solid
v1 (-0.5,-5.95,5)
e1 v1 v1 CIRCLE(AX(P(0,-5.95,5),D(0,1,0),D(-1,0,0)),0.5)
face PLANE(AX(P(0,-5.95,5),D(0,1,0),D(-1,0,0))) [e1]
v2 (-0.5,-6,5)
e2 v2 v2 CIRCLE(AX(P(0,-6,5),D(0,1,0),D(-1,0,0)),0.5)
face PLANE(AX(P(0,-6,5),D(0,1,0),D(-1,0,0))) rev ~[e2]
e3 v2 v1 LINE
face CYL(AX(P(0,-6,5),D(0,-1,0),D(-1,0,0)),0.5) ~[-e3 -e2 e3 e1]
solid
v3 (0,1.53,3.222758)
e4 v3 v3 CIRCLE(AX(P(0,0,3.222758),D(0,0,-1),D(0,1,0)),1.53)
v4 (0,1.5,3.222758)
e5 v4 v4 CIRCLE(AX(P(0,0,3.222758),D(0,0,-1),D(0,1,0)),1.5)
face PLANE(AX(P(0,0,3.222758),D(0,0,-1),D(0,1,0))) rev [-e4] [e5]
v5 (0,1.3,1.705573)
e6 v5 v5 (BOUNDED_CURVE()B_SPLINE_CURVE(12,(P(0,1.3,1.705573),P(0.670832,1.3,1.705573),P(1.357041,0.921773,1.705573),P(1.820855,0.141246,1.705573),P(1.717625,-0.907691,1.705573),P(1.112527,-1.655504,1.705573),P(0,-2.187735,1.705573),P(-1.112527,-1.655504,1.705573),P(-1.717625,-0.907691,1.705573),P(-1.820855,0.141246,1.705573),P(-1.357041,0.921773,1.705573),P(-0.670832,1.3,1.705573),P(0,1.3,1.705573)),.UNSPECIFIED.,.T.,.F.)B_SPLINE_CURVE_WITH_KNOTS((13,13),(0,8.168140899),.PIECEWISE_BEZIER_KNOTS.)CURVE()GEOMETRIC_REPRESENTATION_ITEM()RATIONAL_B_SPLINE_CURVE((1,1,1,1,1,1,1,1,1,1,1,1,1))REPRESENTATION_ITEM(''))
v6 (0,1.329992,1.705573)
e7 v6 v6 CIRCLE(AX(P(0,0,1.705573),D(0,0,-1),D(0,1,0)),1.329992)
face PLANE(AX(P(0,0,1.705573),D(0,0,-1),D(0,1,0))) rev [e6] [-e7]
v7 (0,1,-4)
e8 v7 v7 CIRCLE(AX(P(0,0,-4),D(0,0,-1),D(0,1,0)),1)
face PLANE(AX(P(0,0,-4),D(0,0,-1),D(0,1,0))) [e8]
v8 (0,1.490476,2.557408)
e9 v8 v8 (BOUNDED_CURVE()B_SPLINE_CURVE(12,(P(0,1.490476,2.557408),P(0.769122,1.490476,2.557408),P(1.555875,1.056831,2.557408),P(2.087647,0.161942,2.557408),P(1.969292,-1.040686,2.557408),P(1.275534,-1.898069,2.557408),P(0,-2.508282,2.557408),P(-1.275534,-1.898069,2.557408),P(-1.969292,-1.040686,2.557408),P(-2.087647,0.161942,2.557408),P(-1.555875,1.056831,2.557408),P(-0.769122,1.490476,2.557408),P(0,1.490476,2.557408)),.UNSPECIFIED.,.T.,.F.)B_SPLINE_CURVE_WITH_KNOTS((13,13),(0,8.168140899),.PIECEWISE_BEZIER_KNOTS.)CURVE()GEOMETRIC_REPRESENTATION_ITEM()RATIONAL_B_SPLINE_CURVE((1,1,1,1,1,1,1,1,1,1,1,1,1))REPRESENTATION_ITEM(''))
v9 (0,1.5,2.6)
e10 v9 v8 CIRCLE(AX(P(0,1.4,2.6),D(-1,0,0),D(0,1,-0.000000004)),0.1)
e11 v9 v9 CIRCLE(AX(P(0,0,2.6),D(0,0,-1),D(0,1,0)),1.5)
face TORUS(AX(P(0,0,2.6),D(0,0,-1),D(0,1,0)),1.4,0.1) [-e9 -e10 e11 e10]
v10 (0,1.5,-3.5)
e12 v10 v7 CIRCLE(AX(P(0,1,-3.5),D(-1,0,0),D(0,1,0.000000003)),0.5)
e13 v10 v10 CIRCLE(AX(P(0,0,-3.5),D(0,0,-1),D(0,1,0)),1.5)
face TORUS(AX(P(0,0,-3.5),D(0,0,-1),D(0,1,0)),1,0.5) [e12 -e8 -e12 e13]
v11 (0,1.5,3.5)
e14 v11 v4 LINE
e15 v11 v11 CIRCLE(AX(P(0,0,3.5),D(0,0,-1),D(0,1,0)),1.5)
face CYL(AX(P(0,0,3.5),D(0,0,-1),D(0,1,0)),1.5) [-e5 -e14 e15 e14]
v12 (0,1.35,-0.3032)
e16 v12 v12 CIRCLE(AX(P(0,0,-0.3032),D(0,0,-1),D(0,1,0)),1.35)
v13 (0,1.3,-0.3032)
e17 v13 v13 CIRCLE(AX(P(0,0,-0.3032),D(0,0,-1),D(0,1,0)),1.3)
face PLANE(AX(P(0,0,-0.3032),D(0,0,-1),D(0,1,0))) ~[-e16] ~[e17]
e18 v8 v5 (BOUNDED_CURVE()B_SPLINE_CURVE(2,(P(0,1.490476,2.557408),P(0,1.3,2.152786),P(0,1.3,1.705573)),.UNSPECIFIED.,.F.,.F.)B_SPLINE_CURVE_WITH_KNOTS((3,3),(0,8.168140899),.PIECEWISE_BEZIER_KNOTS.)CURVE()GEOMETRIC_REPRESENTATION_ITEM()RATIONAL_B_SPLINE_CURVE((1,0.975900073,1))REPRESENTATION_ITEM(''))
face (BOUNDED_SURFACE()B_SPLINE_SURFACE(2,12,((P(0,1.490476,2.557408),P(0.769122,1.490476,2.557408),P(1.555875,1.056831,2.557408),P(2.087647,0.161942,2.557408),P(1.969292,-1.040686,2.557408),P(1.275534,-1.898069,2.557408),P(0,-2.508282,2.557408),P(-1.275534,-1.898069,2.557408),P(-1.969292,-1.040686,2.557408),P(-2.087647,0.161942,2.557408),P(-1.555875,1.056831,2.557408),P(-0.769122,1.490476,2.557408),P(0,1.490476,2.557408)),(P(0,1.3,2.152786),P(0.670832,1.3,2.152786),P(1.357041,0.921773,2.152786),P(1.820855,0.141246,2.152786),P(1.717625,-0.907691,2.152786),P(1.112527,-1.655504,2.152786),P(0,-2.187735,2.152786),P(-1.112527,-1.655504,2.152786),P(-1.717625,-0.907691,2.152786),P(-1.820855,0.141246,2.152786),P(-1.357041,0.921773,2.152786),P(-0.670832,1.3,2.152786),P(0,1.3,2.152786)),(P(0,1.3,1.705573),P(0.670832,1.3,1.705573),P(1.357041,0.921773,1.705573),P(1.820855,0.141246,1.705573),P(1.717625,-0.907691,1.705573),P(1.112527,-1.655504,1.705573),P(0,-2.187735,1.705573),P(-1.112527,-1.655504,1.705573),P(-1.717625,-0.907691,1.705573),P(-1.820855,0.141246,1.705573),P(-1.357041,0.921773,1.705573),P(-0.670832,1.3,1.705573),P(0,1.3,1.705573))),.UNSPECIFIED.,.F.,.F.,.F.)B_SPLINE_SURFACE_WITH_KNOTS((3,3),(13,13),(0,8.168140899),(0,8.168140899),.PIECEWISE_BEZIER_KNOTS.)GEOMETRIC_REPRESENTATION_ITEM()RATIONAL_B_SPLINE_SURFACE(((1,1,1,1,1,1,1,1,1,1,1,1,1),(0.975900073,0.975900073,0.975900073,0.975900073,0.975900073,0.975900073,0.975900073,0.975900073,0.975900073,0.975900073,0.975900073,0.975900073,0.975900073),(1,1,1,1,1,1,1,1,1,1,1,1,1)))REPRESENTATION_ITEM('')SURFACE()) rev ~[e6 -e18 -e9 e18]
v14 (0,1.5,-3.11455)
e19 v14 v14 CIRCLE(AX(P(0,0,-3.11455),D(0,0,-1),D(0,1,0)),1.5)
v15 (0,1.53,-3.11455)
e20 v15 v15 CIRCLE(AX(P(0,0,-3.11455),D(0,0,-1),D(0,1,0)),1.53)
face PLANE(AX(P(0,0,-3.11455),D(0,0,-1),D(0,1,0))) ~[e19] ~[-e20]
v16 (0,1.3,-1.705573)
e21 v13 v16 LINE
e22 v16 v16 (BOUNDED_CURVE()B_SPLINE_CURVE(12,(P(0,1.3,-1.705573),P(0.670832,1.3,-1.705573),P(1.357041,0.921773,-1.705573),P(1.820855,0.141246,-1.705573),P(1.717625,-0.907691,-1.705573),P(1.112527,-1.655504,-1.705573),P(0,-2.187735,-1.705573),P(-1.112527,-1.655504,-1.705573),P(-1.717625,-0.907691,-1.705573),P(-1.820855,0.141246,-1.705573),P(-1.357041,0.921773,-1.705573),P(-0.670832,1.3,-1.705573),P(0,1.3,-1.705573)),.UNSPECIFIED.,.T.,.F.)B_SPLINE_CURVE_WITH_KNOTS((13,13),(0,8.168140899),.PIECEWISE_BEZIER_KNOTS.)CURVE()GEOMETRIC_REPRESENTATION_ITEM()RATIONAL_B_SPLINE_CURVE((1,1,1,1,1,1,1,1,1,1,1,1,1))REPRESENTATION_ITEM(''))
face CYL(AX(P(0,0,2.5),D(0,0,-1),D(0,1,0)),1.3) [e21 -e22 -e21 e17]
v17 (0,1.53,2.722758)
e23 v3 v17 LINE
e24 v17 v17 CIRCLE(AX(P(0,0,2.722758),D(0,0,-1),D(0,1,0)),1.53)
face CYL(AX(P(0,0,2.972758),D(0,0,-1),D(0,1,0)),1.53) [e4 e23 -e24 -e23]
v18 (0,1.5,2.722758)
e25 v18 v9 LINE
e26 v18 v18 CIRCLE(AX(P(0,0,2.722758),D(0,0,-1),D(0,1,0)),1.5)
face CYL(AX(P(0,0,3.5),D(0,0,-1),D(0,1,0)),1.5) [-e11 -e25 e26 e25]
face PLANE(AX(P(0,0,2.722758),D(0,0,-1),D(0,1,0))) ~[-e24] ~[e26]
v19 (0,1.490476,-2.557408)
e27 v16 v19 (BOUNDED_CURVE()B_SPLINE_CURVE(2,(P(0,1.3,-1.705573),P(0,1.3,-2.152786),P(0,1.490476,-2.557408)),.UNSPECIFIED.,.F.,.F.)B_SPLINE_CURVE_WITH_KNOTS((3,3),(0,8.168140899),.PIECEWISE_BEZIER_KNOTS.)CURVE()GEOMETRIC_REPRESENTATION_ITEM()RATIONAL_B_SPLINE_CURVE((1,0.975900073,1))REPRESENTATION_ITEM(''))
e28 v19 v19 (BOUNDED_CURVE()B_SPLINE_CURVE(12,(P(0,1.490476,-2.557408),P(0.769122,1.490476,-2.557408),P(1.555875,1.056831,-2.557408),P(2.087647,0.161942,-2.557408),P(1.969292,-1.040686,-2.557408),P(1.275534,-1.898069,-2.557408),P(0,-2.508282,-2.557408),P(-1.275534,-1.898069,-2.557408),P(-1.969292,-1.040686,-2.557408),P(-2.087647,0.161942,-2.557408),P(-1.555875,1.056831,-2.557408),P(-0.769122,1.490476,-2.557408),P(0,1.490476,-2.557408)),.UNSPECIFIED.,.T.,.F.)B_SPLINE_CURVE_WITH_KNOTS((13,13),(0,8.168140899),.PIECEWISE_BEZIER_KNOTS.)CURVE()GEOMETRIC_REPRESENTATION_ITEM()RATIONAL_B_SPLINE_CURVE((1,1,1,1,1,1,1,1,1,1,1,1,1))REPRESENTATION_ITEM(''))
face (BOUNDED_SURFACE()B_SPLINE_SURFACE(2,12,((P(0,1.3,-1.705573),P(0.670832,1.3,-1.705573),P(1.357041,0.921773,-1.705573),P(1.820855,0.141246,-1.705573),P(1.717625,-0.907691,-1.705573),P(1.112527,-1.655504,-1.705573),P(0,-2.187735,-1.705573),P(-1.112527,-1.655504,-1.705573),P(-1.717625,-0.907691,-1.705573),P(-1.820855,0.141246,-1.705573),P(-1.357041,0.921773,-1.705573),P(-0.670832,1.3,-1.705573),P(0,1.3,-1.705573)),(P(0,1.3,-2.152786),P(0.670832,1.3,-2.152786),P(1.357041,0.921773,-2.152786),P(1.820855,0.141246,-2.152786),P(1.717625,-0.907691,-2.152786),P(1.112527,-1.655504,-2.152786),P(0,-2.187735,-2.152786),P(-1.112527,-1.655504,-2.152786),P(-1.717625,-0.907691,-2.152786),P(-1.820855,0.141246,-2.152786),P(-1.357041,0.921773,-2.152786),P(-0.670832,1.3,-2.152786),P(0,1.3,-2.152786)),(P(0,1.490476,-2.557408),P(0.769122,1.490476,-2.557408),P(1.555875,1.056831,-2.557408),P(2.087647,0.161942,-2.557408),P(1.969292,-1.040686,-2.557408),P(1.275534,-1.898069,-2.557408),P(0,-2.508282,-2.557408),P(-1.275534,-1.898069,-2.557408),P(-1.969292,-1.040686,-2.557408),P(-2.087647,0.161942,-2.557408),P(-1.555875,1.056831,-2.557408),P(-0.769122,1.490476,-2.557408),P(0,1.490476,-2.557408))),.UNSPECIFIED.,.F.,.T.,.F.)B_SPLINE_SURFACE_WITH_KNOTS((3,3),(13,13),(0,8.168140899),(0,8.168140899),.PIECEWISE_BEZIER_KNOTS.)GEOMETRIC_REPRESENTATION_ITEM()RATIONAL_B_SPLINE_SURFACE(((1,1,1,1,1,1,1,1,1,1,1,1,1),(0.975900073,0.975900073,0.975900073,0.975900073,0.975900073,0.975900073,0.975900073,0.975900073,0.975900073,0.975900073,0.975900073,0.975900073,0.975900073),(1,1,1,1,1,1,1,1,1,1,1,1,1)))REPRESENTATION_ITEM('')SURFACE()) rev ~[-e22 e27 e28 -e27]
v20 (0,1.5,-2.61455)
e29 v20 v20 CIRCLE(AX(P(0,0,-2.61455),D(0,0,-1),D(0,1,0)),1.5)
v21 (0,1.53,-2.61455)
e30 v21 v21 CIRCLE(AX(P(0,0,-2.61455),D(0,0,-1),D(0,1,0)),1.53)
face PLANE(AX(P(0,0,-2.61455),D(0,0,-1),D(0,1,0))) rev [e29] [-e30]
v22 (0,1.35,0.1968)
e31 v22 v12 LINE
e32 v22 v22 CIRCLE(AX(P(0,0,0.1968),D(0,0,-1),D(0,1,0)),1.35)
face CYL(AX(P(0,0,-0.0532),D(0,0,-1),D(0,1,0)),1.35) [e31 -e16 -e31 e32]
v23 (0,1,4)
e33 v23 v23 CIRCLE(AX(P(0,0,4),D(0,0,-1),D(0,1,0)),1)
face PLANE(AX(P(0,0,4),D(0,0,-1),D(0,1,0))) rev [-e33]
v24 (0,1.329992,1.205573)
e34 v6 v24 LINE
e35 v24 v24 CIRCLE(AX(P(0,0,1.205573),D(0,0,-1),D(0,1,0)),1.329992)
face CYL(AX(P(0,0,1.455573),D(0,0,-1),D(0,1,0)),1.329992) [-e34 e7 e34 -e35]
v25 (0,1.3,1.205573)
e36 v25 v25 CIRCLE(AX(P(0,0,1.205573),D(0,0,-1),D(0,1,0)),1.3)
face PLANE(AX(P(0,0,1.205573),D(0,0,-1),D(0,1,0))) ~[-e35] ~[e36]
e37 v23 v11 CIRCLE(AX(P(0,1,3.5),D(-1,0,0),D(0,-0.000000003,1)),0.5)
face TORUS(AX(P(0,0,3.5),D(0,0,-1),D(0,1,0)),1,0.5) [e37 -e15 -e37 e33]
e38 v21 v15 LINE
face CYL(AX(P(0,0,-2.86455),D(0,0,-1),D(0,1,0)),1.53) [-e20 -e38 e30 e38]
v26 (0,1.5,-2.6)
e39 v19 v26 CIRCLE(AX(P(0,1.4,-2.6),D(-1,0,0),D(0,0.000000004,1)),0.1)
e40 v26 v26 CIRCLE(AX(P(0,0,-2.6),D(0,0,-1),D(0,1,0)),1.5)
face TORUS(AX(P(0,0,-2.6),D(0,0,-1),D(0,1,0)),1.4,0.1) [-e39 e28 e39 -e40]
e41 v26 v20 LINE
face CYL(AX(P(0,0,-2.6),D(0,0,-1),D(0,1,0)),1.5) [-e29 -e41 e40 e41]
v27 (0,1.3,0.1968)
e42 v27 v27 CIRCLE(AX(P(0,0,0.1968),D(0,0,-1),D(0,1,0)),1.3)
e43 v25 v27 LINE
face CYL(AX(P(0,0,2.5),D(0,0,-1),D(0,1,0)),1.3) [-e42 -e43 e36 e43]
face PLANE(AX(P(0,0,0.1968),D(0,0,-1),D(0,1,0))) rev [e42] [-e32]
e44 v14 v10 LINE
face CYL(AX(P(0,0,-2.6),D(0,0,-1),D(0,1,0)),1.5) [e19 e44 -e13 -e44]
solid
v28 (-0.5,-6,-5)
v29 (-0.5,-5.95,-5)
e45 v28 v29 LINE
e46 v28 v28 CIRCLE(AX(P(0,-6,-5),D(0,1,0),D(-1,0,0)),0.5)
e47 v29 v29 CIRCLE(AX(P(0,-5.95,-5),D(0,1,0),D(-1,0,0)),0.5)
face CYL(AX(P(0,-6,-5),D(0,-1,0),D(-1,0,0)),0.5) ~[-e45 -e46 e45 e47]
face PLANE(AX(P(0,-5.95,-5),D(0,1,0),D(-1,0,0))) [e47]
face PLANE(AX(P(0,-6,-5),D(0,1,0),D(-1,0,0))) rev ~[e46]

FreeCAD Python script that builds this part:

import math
import FreeCAD as App
import Part
import Sketcher


def edges_at(feature, points):
    """Names of the edges that pass closest to the given points."""
    edges = feature.Shape.Edges
    near = lambda p: min(range(len(edges)), key=lambda i: edges[i].distToShape(Part.Vertex(*p))[0])
    return sorted({f"Edge{near(p) + 1}" for p in points})

doc = App.newDocument("Part")
body = doc.addObject("PartDesign::Body", "Body")

# Sketch on YZ plane
sketch1 = body.newObject("Sketcher::SketchObject", "Sketch")
sketch1.AttachmentSupport = (doc.getObject("YZ_Plane"), [""])
sketch1.MapMode = "FlatFace"
sketch1.addGeometry([
    Part.LineSegment(App.Vector(1.5, -3.5, 0), App.Vector(1.5, -2.6, 0)),  # 0
    Part.ArcOfCircle(Part.Circle(App.Vector(1.4, -2.6, 0), App.Vector(0, 0, 1), 0.1), math.radians(0), math.radians(90)),  # 1
    Part.LineSegment(App.Vector(1.4, -2.5, 0), App.Vector(1.3, -2.5, 0)),  # 2
    Part.LineSegment(App.Vector(1.3, -2.5, 0), App.Vector(1.3, 2.5, 0)),  # 3
    Part.LineSegment(App.Vector(1.3, 2.5, 0), App.Vector(1.4, 2.5, 0)),  # 4
    Part.ArcOfCircle(Part.Circle(App.Vector(1.4, 2.6, 0), App.Vector(0, 0, 1), 0.1), math.radians(-90), math.radians(0)),  # 5
    Part.LineSegment(App.Vector(1.5, 2.6, 0), App.Vector(1.5, 3.5, 0)),  # 6
    Part.ArcOfCircle(Part.Circle(App.Vector(1, 3.5, 0), App.Vector(0, 0, 1), 0.5), math.radians(0), math.radians(90)),  # 7
    Part.LineSegment(App.Vector(1, 4, 0), App.Vector(0, 4, 0)),  # 8
    Part.LineSegment(App.Vector(0, 4, 0), App.Vector(0, -4, 0)),  # 9
    Part.LineSegment(App.Vector(0, -4, 0), App.Vector(1, -4, 0)),  # 10
    Part.ArcOfCircle(Part.Circle(App.Vector(1, -3.5, 0), App.Vector(0, 0, 1), 0.5), math.radians(-90), math.radians(0)),  # 11
], False)
sketch1.addConstraint([
    Sketcher.Constraint("Tangent", 0, 2, 1, 1),
    Sketcher.Constraint("Tangent", 1, 2, 2, 1),
    Sketcher.Constraint("Coincident", 2, 2, 3, 1),
    Sketcher.Constraint("Coincident", 3, 2, 4, 1),
    Sketcher.Constraint("Tangent", 4, 2, 5, 1),
    Sketcher.Constraint("Tangent", 5, 2, 6, 1),
    Sketcher.Constraint("Tangent", 6, 2, 7, 1),
    Sketcher.Constraint("Tangent", 7, 2, 8, 1),
    Sketcher.Constraint("Coincident", 8, 2, 9, 1),
    Sketcher.Constraint("Coincident", 9, 2, 10, 1),
    Sketcher.Constraint("Tangent", 10, 2, 11, 1),
    Sketcher.Constraint("Tangent", 11, 2, 0, 1),
    Sketcher.Constraint("Vertical", 0),
    Sketcher.Constraint("Horizontal", 2),
    Sketcher.Constraint("Vertical", 3),
    Sketcher.Constraint("Horizontal", 4),
    Sketcher.Constraint("Vertical", 6),
    Sketcher.Constraint("Horizontal", 8),
    Sketcher.Constraint("Vertical", 9),
    Sketcher.Constraint("Horizontal", 10),
    Sketcher.Constraint("Equal", 1, 5),
    Sketcher.Constraint("Equal", 7, 11),
    Sketcher.Constraint("Symmetric", 8, 2, 9, 2, -1, 1),
    Sketcher.Constraint("Symmetric", 1, 3, 5, 3, -1),
    Sketcher.Constraint("Radius", 1, 0.1),
    Sketcher.Constraint("Radius", 7, 0.5),
    Sketcher.Constraint("DistanceX", 8, 2, 8, 1, 1.0),
    Sketcher.Constraint("DistanceY", 3, 1, 3, 2, 5.0),
    Sketcher.Constraint("DistanceY", 9, 2, 9, 1, 8.0),
    Sketcher.Constraint("DistanceX", 2, 2, 2, 1, 0.1),
])
revolution = body.newObject("PartDesign::Revolution", "Revolution")
revolution.Profile = sketch1
revolution.ReferenceAxis = (sketch1, ["V_Axis"])
revolution.Angle = 360
doc.recompute()

fillet = body.newObject("PartDesign::Fillet", "Fillet")
fillet.Base = (revolution, edges_at(revolution, [(0, -1.3, -2.5), (0, -1.3, 2.5)]))
fillet.Radius = 2

# Sketch on YZ plane
sketch2 = body.newObject("Sketcher::SketchObject", "Sketch001")
sketch2.AttachmentSupport = (doc.getObject("YZ_Plane"), [""])
sketch2.MapMode = "FlatFace"
sketch2.addGeometry([
    Part.LineSegment(App.Vector(1.33, 1.706, 0), App.Vector(1.3, 1.706, 0)),
    Part.LineSegment(App.Vector(1.3, 1.706, 0), App.Vector(1.3, 1.206, 0)),
    Part.LineSegment(App.Vector(1.3, 1.206, 0), App.Vector(1.33, 1.206, 0)),
    Part.LineSegment(App.Vector(1.33, 1.206, 0), App.Vector(1.33, 1.706, 0)),
], False)
sketch2.addConstraint([
    Sketcher.Constraint("Coincident", 0, 2, 1, 1),
    Sketcher.Constraint("Coincident", 1, 2, 2, 1),
    Sketcher.Constraint("Coincident", 2, 2, 3, 1),
    Sketcher.Constraint("Coincident", 3, 2, 0, 1),
    Sketcher.Constraint("Horizontal", 0),
    Sketcher.Constraint("Vertical", 1),
    Sketcher.Constraint("Horizontal", 2),
    Sketcher.Constraint("Vertical", 3),
    Sketcher.Constraint("DistanceY", 1, 2, 1, 1, 0.5),
    Sketcher.Constraint("DistanceX", -1, 1, 0, 2, 1.3),
    Sketcher.Constraint("DistanceX", 0, 2, 0, 1, 0.029992),
    Sketcher.Constraint("DistanceY", -1, 1, 0, 2, 1.705573),
])
revolution2 = body.newObject("PartDesign::Revolution", "Revolution001")
revolution2.Profile = sketch2
revolution2.ReferenceAxis = (sketch2, ["V_Axis"])
revolution2.Angle = 360

# Sketch on YZ plane
sketch3 = body.newObject("Sketcher::SketchObject", "Sketch002")
sketch3.AttachmentSupport = (doc.getObject("YZ_Plane"), [""])
sketch3.MapMode = "FlatFace"
sketch3.addGeometry([
    Part.LineSegment(App.Vector(1.35, 0.2, 0), App.Vector(1.3, 0.2, 0)),
    Part.LineSegment(App.Vector(1.3, 0.2, 0), App.Vector(1.3, -0.3, 0)),
    Part.LineSegment(App.Vector(1.3, -0.3, 0), App.Vector(1.35, -0.3, 0)),
    Part.LineSegment(App.Vector(1.35, -0.3, 0), App.Vector(1.35, 0.2, 0)),
], False)
sketch3.addConstraint([
    Sketcher.Constraint("Coincident", 0, 2, 1, 1),
    Sketcher.Constraint("Coincident", 1, 2, 2, 1),
    Sketcher.Constraint("Coincident", 2, 2, 3, 1),
    Sketcher.Constraint("Coincident", 3, 2, 0, 1),
    Sketcher.Constraint("Horizontal", 0),
    Sketcher.Constraint("Vertical", 1),
    Sketcher.Constraint("Horizontal", 2),
    Sketcher.Constraint("Vertical", 3),
    Sketcher.Constraint("DistanceY", 1, 2, 1, 1, 0.5),
    Sketcher.Constraint("DistanceX", 0, 2, 0, 1, 0.05),
    Sketcher.Constraint("DistanceX", -1, 1, 0, 2, 1.3),
    Sketcher.Constraint("DistanceY", -1, 1, 0, 2, 0.1968),
])
revolution3 = body.newObject("PartDesign::Revolution", "Revolution002")
revolution3.Profile = sketch3
revolution3.ReferenceAxis = (sketch3, ["V_Axis"])
revolution3.Angle = 360

# Sketch on YZ plane
sketch4 = body.newObject("Sketcher::SketchObject", "Sketch003")
sketch4.AttachmentSupport = (doc.getObject("YZ_Plane"), [""])
sketch4.MapMode = "FlatFace"
sketch4.addGeometry([
    Part.LineSegment(App.Vector(1.53, 3.223, 0), App.Vector(1.5, 3.223, 0)),
    Part.LineSegment(App.Vector(1.5, 3.223, 0), App.Vector(1.5, 2.723, 0)),
    Part.LineSegment(App.Vector(1.5, 2.723, 0), App.Vector(1.53, 2.723, 0)),
    Part.LineSegment(App.Vector(1.53, 2.723, 0), App.Vector(1.53, 3.223, 0)),
], False)
sketch4.addConstraint([
    Sketcher.Constraint("Coincident", 0, 2, 1, 1),
    Sketcher.Constraint("Coincident", 1, 2, 2, 1),
    Sketcher.Constraint("Coincident", 2, 2, 3, 1),
    Sketcher.Constraint("Coincident", 3, 2, 0, 1),
    Sketcher.Constraint("Horizontal", 0),
    Sketcher.Constraint("Vertical", 1),
    Sketcher.Constraint("Horizontal", 2),
    Sketcher.Constraint("Vertical", 3),
    Sketcher.Constraint("DistanceY", 1, 2, 1, 1, 0.5),
    Sketcher.Constraint("DistanceX", 0, 2, 0, 1, 0.03),
    Sketcher.Constraint("DistanceX", -1, 1, 0, 2, 1.5),
    Sketcher.Constraint("DistanceY", -1, 1, 0, 2, 3.222758),
])
revolution4 = body.newObject("PartDesign::Revolution", "Revolution003")
revolution4.Profile = sketch4
revolution4.ReferenceAxis = (sketch4, ["V_Axis"])
revolution4.Angle = 360

# Sketch on YZ plane
sketch5 = body.newObject("Sketcher::SketchObject", "Sketch004")
sketch5.AttachmentSupport = (doc.getObject("YZ_Plane"), [""])
sketch5.MapMode = "FlatFace"
sketch5.addGeometry([
    Part.LineSegment(App.Vector(1.53, -2.615, 0), App.Vector(1.5, -2.615, 0)),
    Part.LineSegment(App.Vector(1.5, -2.615, 0), App.Vector(1.5, -3.115, 0)),
    Part.LineSegment(App.Vector(1.5, -3.115, 0), App.Vector(1.53, -3.115, 0)),
    Part.LineSegment(App.Vector(1.53, -3.115, 0), App.Vector(1.53, -2.615, 0)),
], False)
sketch5.addConstraint([
    Sketcher.Constraint("Coincident", 0, 2, 1, 1),
    Sketcher.Constraint("Coincident", 1, 2, 2, 1),
    Sketcher.Constraint("Coincident", 2, 2, 3, 1),
    Sketcher.Constraint("Coincident", 3, 2, 0, 1),
    Sketcher.Constraint("Horizontal", 0),
    Sketcher.Constraint("Vertical", 1),
    Sketcher.Constraint("Horizontal", 2),
    Sketcher.Constraint("Vertical", 3),
    Sketcher.Constraint("DistanceY", 1, 2, 1, 1, 0.5),
    Sketcher.Constraint("DistanceX", 0, 2, 0, 1, 0.03),
    Sketcher.Constraint("DistanceX", -1, 1, 0, 2, 1.5),
    Sketcher.Constraint("DistanceY", 0, 2, -1, 1, 2.61455),
])
revolution5 = body.newObject("PartDesign::Revolution", "Revolution004")
revolution5.Profile = sketch5
revolution5.ReferenceAxis = (sketch5, ["V_Axis"])
revolution5.Angle = 360
body2 = doc.addObject("PartDesign::Body", "Body001")

# Sketch on XZ plane
sketch6 = body2.newObject("Sketcher::SketchObject", "Sketch005")
sketch6.AttachmentSupport = (doc.getObject("XZ_Plane001"), [""])
sketch6.MapMode = "FlatFace"
sketch6.AttachmentOffset = App.Placement(App.Vector(0, 0, 6), App.Rotation())
sketch6.addGeometry(Part.Circle(App.Vector(0, -5, 0), App.Vector(0, 0, 1), 0.5), False)
sketch6.addConstraint([
    Sketcher.Constraint("PointOnObject", 0, 3, -2),
    Sketcher.Constraint("Diameter", 0, 1.0),
    Sketcher.Constraint("DistanceY", 0, 3, -1, 1, 5.0),
])
pad1 = body2.newObject("PartDesign::Pad", "Pad")
pad1.Profile = sketch6
pad1.Length = 0.05
pad1.Reversed = True
body3 = doc.addObject("PartDesign::Body", "Body002")

# Sketch on XZ plane
sketch7 = body3.newObject("Sketcher::SketchObject", "Sketch006")
sketch7.AttachmentSupport = (doc.getObject("XZ_Plane002"), [""])
sketch7.MapMode = "FlatFace"
sketch7.AttachmentOffset = App.Placement(App.Vector(0, 0, 6), App.Rotation())
sketch7.addGeometry(Part.Circle(App.Vector(0, 5, 0), App.Vector(0, 0, 1), 0.5), False)
sketch7.addConstraint([
    Sketcher.Constraint("PointOnObject", 0, 3, -2),
    Sketcher.Constraint("Diameter", 0, 1.0),
    Sketcher.Constraint("DistanceY", -1, 1, 0, 3, 5.0),
])
pad2 = body3.newObject("PartDesign::Pad", "Pad001")
pad2.Profile = sketch7
pad2.Length = 0.05
pad2.Reversed = True

doc.recompute()
